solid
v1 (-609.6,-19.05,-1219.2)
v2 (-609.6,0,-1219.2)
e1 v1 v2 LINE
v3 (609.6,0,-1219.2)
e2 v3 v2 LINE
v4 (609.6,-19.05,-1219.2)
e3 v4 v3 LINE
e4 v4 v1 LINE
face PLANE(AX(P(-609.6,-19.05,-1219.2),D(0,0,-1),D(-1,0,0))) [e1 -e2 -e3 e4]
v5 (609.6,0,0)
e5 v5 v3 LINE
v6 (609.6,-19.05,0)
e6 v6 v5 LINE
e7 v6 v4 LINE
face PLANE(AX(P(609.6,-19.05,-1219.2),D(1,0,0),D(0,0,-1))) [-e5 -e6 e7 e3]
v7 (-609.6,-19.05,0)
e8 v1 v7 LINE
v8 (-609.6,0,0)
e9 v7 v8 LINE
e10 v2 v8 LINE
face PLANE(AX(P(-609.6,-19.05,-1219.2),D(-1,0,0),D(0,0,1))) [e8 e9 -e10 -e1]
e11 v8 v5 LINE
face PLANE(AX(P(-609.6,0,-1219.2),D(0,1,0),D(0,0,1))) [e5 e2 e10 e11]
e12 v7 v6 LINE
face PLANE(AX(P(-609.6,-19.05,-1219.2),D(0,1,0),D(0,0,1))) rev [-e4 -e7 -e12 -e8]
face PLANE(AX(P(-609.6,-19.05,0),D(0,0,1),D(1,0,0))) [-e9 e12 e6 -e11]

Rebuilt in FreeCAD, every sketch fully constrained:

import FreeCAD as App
import Part
import Sketcher
from FreeCAD import Vector
Q = App.Units.Quantity


def add_polygon(sketch, points):
    """Adds a closed chain of lines whose ends are joined by coincident constraints."""
    first, n = sketch.GeometryCount, len(points)
    for a, b in zip(points, points[1:] + points[:1]):
        sketch.addGeometry(Part.LineSegment(App.Vector(*a, 0), App.Vector(*b, 0)), False)
    for i in range(n):
        sketch.addConstraint(Sketcher.Constraint("Coincident", first + i, 2, first + (i + 1) % n, 1))

doc = App.newDocument("Part")
params = doc.addObject("Spreadsheet::Sheet", "Params")
for row, (alias, value) in enumerate([
    ("sketch1_width", "48 in"),
    ("pad1_length", "0.75 in"),
], start=1):
    params.set(f"A{row}", alias)
    params.set(f"B{row}", "=" + value)
    params.setAlias(f"B{row}", alias)

body = doc.addObject("PartDesign::Body", "Body")

sketch1 = body.newObject("Sketcher::SketchObject", "Sketch")
sketch1.AttachmentSupport = (doc.getObject("XZ_Plane"), [""])
sketch1.MapMode = "FlatFace"
add_polygon(sketch1, [(-610, -1219), (-610, 0), (610, 0), (610, -1219)])
sketch1.addConstraint([
    Sketcher.Constraint("Vertical", 0),
    Sketcher.Constraint("Horizontal", 1),
    Sketcher.Constraint("Vertical", 2),
    Sketcher.Constraint("Horizontal", 3),
    Sketcher.Constraint("Symmetric", 0, 2, 1, 2, -1, 1),
    Sketcher.Constraint("Equal", 3, 0),
    Sketcher.Constraint("DistanceX", 1, 1, 1, 2, Q("48 in")),
])
sketch1.setExpression("Constraints[10]", "Params.sketch1_width")
pad1 = body.newObject("PartDesign::Pad", "Pad")
pad1.Profile = sketch1
pad1.setExpression("Length", "Params.pad1_length")

doc.recompute()
